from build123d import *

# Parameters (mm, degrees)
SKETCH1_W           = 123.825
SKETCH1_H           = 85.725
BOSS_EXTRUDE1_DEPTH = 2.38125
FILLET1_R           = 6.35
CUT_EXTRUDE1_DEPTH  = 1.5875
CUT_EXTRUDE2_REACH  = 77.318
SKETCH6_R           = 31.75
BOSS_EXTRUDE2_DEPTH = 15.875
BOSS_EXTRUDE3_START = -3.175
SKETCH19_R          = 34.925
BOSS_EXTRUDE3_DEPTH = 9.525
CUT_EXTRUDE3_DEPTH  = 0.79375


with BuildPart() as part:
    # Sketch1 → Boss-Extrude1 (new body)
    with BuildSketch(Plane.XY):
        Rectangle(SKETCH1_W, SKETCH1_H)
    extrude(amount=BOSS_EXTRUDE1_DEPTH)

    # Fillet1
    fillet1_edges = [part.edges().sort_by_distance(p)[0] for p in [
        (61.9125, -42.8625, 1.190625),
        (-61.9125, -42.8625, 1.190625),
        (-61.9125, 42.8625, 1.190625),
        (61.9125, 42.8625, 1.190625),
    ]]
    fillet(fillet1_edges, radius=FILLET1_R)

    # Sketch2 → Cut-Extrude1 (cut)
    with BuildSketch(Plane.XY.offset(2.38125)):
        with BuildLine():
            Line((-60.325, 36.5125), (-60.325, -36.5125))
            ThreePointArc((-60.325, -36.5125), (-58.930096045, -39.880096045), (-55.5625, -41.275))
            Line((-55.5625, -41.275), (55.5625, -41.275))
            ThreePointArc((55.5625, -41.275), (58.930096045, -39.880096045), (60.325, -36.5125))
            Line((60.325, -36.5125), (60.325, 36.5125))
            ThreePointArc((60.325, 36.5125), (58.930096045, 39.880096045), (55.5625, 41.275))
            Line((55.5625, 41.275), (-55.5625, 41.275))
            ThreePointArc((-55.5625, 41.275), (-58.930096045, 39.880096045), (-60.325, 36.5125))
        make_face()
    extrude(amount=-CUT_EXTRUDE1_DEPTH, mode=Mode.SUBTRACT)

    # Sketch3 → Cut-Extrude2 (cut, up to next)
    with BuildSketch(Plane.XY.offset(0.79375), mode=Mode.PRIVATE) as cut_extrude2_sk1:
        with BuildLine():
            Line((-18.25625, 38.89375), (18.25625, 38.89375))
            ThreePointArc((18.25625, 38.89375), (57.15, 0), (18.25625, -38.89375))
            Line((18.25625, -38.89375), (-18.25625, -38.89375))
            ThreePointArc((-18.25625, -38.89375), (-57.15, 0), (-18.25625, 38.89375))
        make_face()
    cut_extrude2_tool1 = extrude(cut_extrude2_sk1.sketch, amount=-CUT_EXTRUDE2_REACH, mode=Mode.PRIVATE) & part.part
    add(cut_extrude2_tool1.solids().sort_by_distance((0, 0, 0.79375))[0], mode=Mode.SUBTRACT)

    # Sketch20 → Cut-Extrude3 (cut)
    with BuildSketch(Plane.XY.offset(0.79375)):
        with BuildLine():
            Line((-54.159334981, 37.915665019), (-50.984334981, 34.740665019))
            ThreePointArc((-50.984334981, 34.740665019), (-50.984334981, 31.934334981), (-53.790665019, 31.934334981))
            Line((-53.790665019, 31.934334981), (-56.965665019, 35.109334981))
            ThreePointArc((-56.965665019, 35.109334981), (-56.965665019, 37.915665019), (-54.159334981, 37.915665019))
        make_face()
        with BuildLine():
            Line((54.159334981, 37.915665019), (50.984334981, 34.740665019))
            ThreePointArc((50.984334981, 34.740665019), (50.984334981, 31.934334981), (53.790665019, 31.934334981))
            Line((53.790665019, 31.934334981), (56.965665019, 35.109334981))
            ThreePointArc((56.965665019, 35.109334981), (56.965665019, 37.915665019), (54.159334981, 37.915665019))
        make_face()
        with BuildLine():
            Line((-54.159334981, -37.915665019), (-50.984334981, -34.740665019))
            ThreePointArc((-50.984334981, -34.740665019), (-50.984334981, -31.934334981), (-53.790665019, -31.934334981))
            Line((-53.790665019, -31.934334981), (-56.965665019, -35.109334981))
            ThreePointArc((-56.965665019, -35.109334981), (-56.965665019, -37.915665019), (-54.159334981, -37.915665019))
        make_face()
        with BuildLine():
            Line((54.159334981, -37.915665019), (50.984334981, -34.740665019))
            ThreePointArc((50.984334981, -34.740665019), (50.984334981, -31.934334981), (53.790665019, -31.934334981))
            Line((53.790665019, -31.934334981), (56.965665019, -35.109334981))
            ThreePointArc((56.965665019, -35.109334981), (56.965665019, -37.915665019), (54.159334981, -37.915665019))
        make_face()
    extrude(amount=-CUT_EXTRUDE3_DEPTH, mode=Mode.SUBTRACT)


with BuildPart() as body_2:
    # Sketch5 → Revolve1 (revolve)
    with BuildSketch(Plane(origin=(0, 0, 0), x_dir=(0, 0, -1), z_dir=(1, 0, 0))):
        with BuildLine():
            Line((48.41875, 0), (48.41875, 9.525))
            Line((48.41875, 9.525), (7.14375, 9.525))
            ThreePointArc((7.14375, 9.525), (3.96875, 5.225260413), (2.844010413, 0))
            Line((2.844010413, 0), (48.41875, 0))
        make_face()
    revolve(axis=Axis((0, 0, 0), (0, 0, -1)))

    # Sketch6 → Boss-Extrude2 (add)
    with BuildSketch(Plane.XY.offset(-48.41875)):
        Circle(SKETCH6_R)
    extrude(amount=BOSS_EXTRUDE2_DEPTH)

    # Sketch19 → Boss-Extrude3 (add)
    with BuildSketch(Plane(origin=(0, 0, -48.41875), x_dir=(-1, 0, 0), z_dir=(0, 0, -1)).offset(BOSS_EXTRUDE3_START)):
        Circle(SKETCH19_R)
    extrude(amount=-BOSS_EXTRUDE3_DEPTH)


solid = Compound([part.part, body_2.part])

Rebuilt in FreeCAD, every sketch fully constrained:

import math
import FreeCAD as App
import Part
import Sketcher
from FreeCAD import Vector
Q = App.Units.Quantity


def edges_at(feature, points):
    """Names of the edges that pass closest to the given points."""
    edges = feature.Shape.Edges
    near = lambda p: min(range(len(edges)), key=lambda i: edges[i].distToShape(Part.Vertex(*p))[0])
    return sorted({f"Edge{near(p) + 1}" for p in points})


def add_polygon(sketch, points):
    """Adds a closed chain of lines whose ends are joined by coincident constraints."""
    first, n = sketch.GeometryCount, len(points)
    for a, b in zip(points, points[1:] + points[:1]):
        sketch.addGeometry(Part.LineSegment(App.Vector(*a, 0), App.Vector(*b, 0)), False)
    for i in range(n):
        sketch.addConstraint(Sketcher.Constraint("Coincident", first + i, 2, first + (i + 1) % n, 1))

doc = App.newDocument("Part")
body = doc.addObject("PartDesign::Body", "Body")

sketch1 = body.newObject("Sketcher::SketchObject", "Sketch")
sketch1.AttachmentSupport = (doc.getObject("XY_Plane"), [""])
sketch1.MapMode = "FlatFace"
add_polygon(sketch1, [(-61.9125, 42.8625), (-61.9125, -42.8625), (61.9125, -42.8625), (61.9125, 42.8625)])
sketch1.addConstraint(Sketcher.Constraint("Vertical", 0))
sketch1.addConstraint(Sketcher.Constraint("Horizontal", 1))
sketch1.addConstraint(Sketcher.Constraint("Vertical", 2))
sketch1.addConstraint(Sketcher.Constraint("Horizontal", 3))
sketch1.addConstraint(Sketcher.Constraint("Symmetric", 0, 2, 2, 2, -1, 1))
sketch1.addConstraint(Sketcher.Constraint("DistanceX", 1, 1, 1, 2, Q("4.875 in")))
sketch1.addConstraint(Sketcher.Constraint("DistanceY", 0, 2, 0, 1, Q("3.375 in")))
pad1 = body.newObject("PartDesign::Pad", "Pad")
pad1.Profile = sketch1
pad1.Length = Q("0.09375 in")
doc.recompute()

fillet = body.newObject("PartDesign::Fillet", "Fillet")
fillet.Base = (pad1, edges_at(pad1, [
    (61.913, -42.862, 1.191),
    (-61.913, -42.862, 1.191),
    (-61.913, 42.862, 1.191),
    (61.913, 42.862, 1.191),
]))
fillet.Radius = Q("0.25 in")

sketch2 = body.newObject("Sketcher::SketchObject", "Sketch001")
sketch2.AttachmentSupport = (doc.getObject("XY_Plane"), [""])
sketch2.MapMode = "FlatFace"
sketch2.AttachmentOffset = App.Placement(Vector(0, 0, 0.09375 * 25.4), App.Rotation())
sketch2.addGeometry(Part.LineSegment(Vector(-60.325, 36.5125, 0), Vector(-60.325, -36.5125, 0)), False)
sketch2.addGeometry(Part.ArcOfCircle(Part.Circle(Vector(-55.5625, -36.5125, 0), Vector(0, 0, 1), 4.7625), math.radians(-180), math.radians(-90)), False)
sketch2.addGeometry(Part.LineSegment(Vector(-55.5625, -41.275, 0), Vector(55.5625, -41.275, 0)), False)
sketch2.addGeometry(Part.ArcOfCircle(Part.Circle(Vector(55.5625, -36.5125, 0), Vector(0, 0, 1), 4.7625), math.radians(-90), math.radians(0)), False)
sketch2.addGeometry(Part.LineSegment(Vector(60.325, -36.5125, 0), Vector(60.325, 36.5125, 0)), False)
sketch2.addGeometry(Part.ArcOfCircle(Part.Circle(Vector(55.5625, 36.5125, 0), Vector(0, 0, 1), 4.7625), math.radians(0), math.radians(90)), False)
sketch2.addGeometry(Part.LineSegment(Vector(55.5625, 41.275, 0), Vector(-55.5625, 41.275, 0)), False)
sketch2.addGeometry(Part.ArcOfCircle(Part.Circle(Vector(-55.5625, 36.5125, 0), Vector(0, 0, 1), 4.7625), math.radians(90), math.radians(180)), False)
sketch2.addConstraint(Sketcher.Constraint("Tangent", 0, 2, 1, 1))
sketch2.addConstraint(Sketcher.Constraint("Tangent", 1, 2, 2, 1))
sketch2.addConstraint(Sketcher.Constraint("Tangent", 2, 2, 3, 1))
sketch2.addConstraint(Sketcher.Constraint("Tangent", 3, 2, 4, 1))
sketch2.addConstraint(Sketcher.Constraint("Tangent", 4, 2, 5, 1))
sketch2.addConstraint(Sketcher.Constraint("Tangent", 5, 2, 6, 1))
sketch2.addConstraint(Sketcher.Constraint("Tangent", 6, 2, 7, 1))
sketch2.addConstraint(Sketcher.Constraint("Tangent", 7, 2, 0, 1))
sketch2.addConstraint(Sketcher.Constraint("Vertical", 0))
sketch2.addConstraint(Sketcher.Constraint("Horizontal", 2))
sketch2.addConstraint(Sketcher.Constraint("Vertical", 4))
sketch2.addConstraint(Sketcher.Constraint("Horizontal", 6))
sketch2.addConstraint(Sketcher.Constraint("Equal", 1, 3))
sketch2.addConstraint(Sketcher.Constraint("Equal", 3, 5))
sketch2.addConstraint(Sketcher.Constraint("Equal", 5, 7))
sketch2.addConstraint(Sketcher.Constraint("Symmetric", 1, 3, 5, 3, -1, 1))
sketch2.addConstraint(Sketcher.Constraint("Radius", 1, Q("0.1875 in")))
sketch2.addConstraint(Sketcher.Constraint("DistanceX", 2, 1, 2, 2, Q("4.375 in")))
sketch2.addConstraint(Sketcher.Constraint("DistanceY", 0, 2, 0, 1, Q("2.875 in")))
pocket1 = body.newObject("PartDesign::Pocket", "Pocket")
pocket1.Profile = sketch2
pocket1.Length = Q("0.0625 in")

sketch3 = body.newObject("Sketcher::SketchObject", "Sketch002")
sketch3.AttachmentSupport = (doc.getObject("XY_Plane"), [""])
sketch3.MapMode = "FlatFace"
sketch3.AttachmentOffset = App.Placement(Vector(0, 0, 0.03125 * 25.4), App.Rotation())
sketch3.addGeometry(Part.LineSegment(Vector(18.25625, 38.89375, 0), Vector(-18.25625, 38.89375, 0)), False)
sketch3.addGeometry(Part.ArcOfCircle(Part.Circle(Vector(-18.25625, 0, 0), Vector(0, 0, 1), 38.89375), math.radians(90), math.radians(270)), False)
sketch3.addGeometry(Part.LineSegment(Vector(-18.25625, -38.89375, 0), Vector(18.25625, -38.89375, 0)), False)
sketch3.addGeometry(Part.ArcOfCircle(Part.Circle(Vector(18.25625, 0, 0), Vector(0, 0, 1), 38.89375), math.radians(-90), math.radians(90)), False)
sketch3.addConstraint(Sketcher.Constraint("Tangent", 0, 2, 1, 1))
sketch3.addConstraint(Sketcher.Constraint("Tangent", 1, 2, 2, 1))
sketch3.addConstraint(Sketcher.Constraint("Tangent", 2, 2, 3, 1))
sketch3.addConstraint(Sketcher.Constraint("Tangent", 3, 2, 0, 1))
sketch3.addConstraint(Sketcher.Constraint("Horizontal", 0))
sketch3.addConstraint(Sketcher.Constraint("Horizontal", 2))
sketch3.addConstraint(Sketcher.Constraint("Symmetric", 1, 3, 3, 3, -1, 1))
sketch3.addConstraint(Sketcher.Constraint("Radius", 1, Q("1.53125 in")))
sketch3.addConstraint(Sketcher.Constraint("DistanceX", 0, 2, 0, 1, Q("1.4375 in")))
pocket2 = body.newObject("PartDesign::Pocket", "Pocket001")
pocket2.Profile = sketch3
pocket2.Type = "UpToFirst"

sketch4 = body.newObject("Sketcher::SketchObject", "Sketch003")
sketch4.AttachmentSupport = (doc.getObject("XY_Plane"), [""])
sketch4.MapMode = "FlatFace"
sketch4.AttachmentOffset = App.Placement(Vector(0, 0, 0.03125 * 25.4), App.Rotation())
sketch4.addGeometry(Part.LineSegment(Vector(-50.984335, 34.740665, 0), Vector(-54.159335, 37.915665, 0)), False)
sketch4.addGeometry(Part.ArcOfCircle(Part.Circle(Vector(-55.5625, 36.5125, 0), Vector(0, 0, 1), 1.984375), math.radians(45), math.radians(225)), False)
sketch4.addGeometry(Part.LineSegment(Vector(-56.965665, 35.109335, 0), Vector(-53.790665, 31.934335, 0)), False)
sketch4.addGeometry(Part.ArcOfCircle(Part.Circle(Vector(-52.3875, 33.3375, 0), Vector(0, 0, 1), 1.984375), math.radians(-135), math.radians(45)), False)
sketch4.addGeometry(Part.LineSegment(Vector(54.159335, 37.915665, 0), Vector(50.984335, 34.740665, 0)), False)
sketch4.addGeometry(Part.ArcOfCircle(Part.Circle(Vector(52.3875, 33.3375, 0), Vector(0, 0, 1), 1.984375), math.radians(135), math.radians(315)), False)
sketch4.addGeometry(Part.LineSegment(Vector(53.790665, 31.934335, 0), Vector(56.965665, 35.109335, 0)), False)
sketch4.addGeometry(Part.ArcOfCircle(Part.Circle(Vector(55.5625, 36.5125, 0), Vector(0, 0, 1), 1.984375), math.radians(-45), math.radians(135)), False)
sketch4.addGeometry(Part.LineSegment(Vector(-54.159335, -37.915665, 0), Vector(-50.984335, -34.740665, 0)), False)
sketch4.addGeometry(Part.ArcOfCircle(Part.Circle(Vector(-52.3875, -33.3375, 0), Vector(0, 0, 1), 1.984375), math.radians(-45), math.radians(135)), False)
sketch4.addGeometry(Part.LineSegment(Vector(-53.790665, -31.934335, 0), Vector(-56.965665, -35.109335, 0)), False)
sketch4.addGeometry(Part.ArcOfCircle(Part.Circle(Vector(-55.5625, -36.5125, 0), Vector(0, 0, 1), 1.984375), math.radians(135), math.radians(315)), False)
sketch4.addGeometry(Part.LineSegment(Vector(50.984335, -34.740665, 0), Vector(54.159335, -37.915665, 0)), False)
sketch4.addGeometry(Part.ArcOfCircle(Part.Circle(Vector(55.5625, -36.5125, 0), Vector(0, 0, 1), 1.984375), math.radians(-135), math.radians(45)), False)
sketch4.addGeometry(Part.LineSegment(Vector(56.965665, -35.109335, 0), Vector(53.790665, -31.934335, 0)), False)
sketch4.addGeometry(Part.ArcOfCircle(Part.Circle(Vector(52.3875, -33.3375, 0), Vector(0, 0, 1), 1.984375), math.radians(45), math.radians(225)), False)
sketch4.addConstraint(Sketcher.Constraint("Tangent", 0, 2, 1, 1))
sketch4.addConstraint(Sketcher.Constraint("Tangent", 1, 2, 2, 1))
sketch4.addConstraint(Sketcher.Constraint("Tangent", 2, 2, 3, 1))
sketch4.addConstraint(Sketcher.Constraint("Tangent", 3, 2, 0, 1))
sketch4.addConstraint(Sketcher.Constraint("Tangent", 4, 2, 5, 1))
sketch4.addConstraint(Sketcher.Constraint("Tangent", 5, 2, 6, 1))
sketch4.addConstraint(Sketcher.Constraint("Tangent", 6, 2, 7, 1))
sketch4.addConstraint(Sketcher.Constraint("Tangent", 7, 2, 4, 1))
sketch4.addConstraint(Sketcher.Constraint("Tangent", 8, 2, 9, 1))
sketch4.addConstraint(Sketcher.Constraint("Tangent", 9, 2, 10, 1))
sketch4.addConstraint(Sketcher.Constraint("Tangent", 10, 2, 11, 1))
sketch4.addConstraint(Sketcher.Constraint("Tangent", 11, 2, 8, 1))
sketch4.addConstraint(Sketcher.Constraint("Tangent", 12, 2, 13, 1))
sketch4.addConstraint(Sketcher.Constraint("Tangent", 13, 2, 14, 1))
sketch4.addConstraint(Sketcher.Constraint("Tangent", 14, 2, 15, 1))
sketch4.addConstraint(Sketcher.Constraint("Tangent", 15, 2, 12, 1))
sketch4.addConstraint(Sketcher.Constraint("Equal", 1, 3))
sketch4.addConstraint(Sketcher.Constraint("Equal", 3, 5))
sketch4.addConstraint(Sketcher.Constraint("Equal", 5, 7))
sketch4.addConstraint(Sketcher.Constraint("Equal", 7, 9))
sketch4.addConstraint(Sketcher.Constraint("Equal", 9, 11))
sketch4.addConstraint(Sketcher.Constraint("Equal", 11, 13))
sketch4.addConstraint(Sketcher.Constraint("Equal", 13, 15))
sketch4.addConstraint(Sketcher.Constraint("Symmetric", 5, 3, 9, 3, -1, 1))
sketch4.addConstraint(Sketcher.Constraint("Symmetric", 7, 3, 11, 3, -1, 1))
sketch4.addConstraint(Sketcher.Constraint("Symmetric", 1, 3, 13, 3, -1, 1))
sketch4.addConstraint(Sketcher.Constraint("Symmetric", 3, 3, 15, 3, -1, 1))
sketch4.addConstraint(Sketcher.Constraint("Symmetric", 3, 3, 5, 3, -2))
sketch4.addConstraint(Sketcher.Constraint("Symmetric", 1, 3, 7, 3, -2))
sketch4.addConstraint(Sketcher.Constraint("Perpendicular", 2, 4))
sketch4.addConstraint(Sketcher.Constraint("Radius", 1, Q("0.078125 in")))
sketch4.addConstraint(Sketcher.Constraint("DistanceX", 1, 3, 5, 3, Q("4.25 in")))
sketch4.addConstraint(Sketcher.Constraint("DistanceY", 9, 3, 1, 3, Q("2.75 in")))
sketch4.addConstraint(Sketcher.Constraint("DistanceX", 1, 3, -1, 1, Q("2.1875 in")))
pocket3 = body.newObject("PartDesign::Pocket", "Pocket002")
pocket3.Profile = sketch4
pocket3.Length = Q("0.03125 in")
body2 = doc.addObject("PartDesign::Body", "Body001")

sketch5 = body2.newObject("Sketcher::SketchObject", "Sketch004")
sketch5.AttachmentSupport = (doc.getObject("YZ_Plane001"), [""])
sketch5.MapMode = "FlatFace"
sketch5.addGeometry(Part.LineSegment(Vector(0, -48.41875, 0), Vector(9.525, -48.41875, 0)), False)
sketch5.addGeometry(Part.LineSegment(Vector(9.525, -48.41875, 0), Vector(9.525, -7.14375, 0)), False)
sketch5.addGeometry(Part.ArcOfCircle(Part.Circle(Vector(0, -15.54401, 0), Vector(0, 0, 1), 12.7), math.radians(41.409622), math.radians(90)), False)
sketch5.addGeometry(Part.LineSegment(Vector(0, -2.84401, 0), Vector(0, -48.41875, 0)), False)
sketch5.addConstraint(Sketcher.Constraint("Coincident", 0, 2, 1, 1))
sketch5.addConstraint(Sketcher.Constraint("Coincident", 1, 2, 2, 1))
sketch5.addConstraint(Sketcher.Constraint("Coincident", 2, 2, 3, 1))
sketch5.addConstraint(Sketcher.Constraint("Coincident", 3, 2, 0, 1))
sketch5.addConstraint(Sketcher.Constraint("Horizontal", 0))
sketch5.addConstraint(Sketcher.Constraint("Vertical", 1))
sketch5.addConstraint(Sketcher.Constraint("Vertical", 3))
sketch5.addConstraint(Sketcher.Constraint("PointOnObject", 2, 3, -2))
sketch5.addConstraint(Sketcher.Constraint("PointOnObject", 2, 2, -2))
sketch5.addConstraint(Sketcher.Constraint("Radius", 2, Q("0.5 in")))
sketch5.addConstraint(Sketcher.Constraint("DistanceX", 0, 1, 0, 2, Q("0.375 in")))
sketch5.addConstraint(Sketcher.Constraint("DistanceY", 1, 1, 1, 2, Q("1.625 in")))
sketch5.addConstraint(Sketcher.Constraint("DistanceY", 0, 2, -1, 1, Q("1.90625 in")))
revolution = body2.newObject("PartDesign::Revolution", "Revolution")
revolution.Profile = sketch5
revolution.ReferenceAxis = (sketch5, ["V_Axis"])
revolution.Angle = 360

sketch6 = body2.newObject("Sketcher::SketchObject", "Sketch005")
sketch6.AttachmentSupport = (doc.getObject("XY_Plane001"), [""])
sketch6.MapMode = "FlatFace"
sketch6.AttachmentOffset = App.Placement(Vector(0, 0, -1.90625 * 25.4), App.Rotation())
sketch6.addGeometry(Part.Circle(Vector(0, 0, 0), Vector(0, 0, 1), 31.75), False)
sketch6.addConstraint(Sketcher.Constraint("Coincident", 0, 3, -1, 1))
sketch6.addConstraint(Sketcher.Constraint("Diameter", 0, Q("2.5 in")))
pad2 = body2.newObject("PartDesign::Pad", "Pad001")
pad2.Profile = sketch6
pad2.Length = Q("0.625 in")

sketch7 = body2.newObject("Sketcher::SketchObject", "Sketch006")
sketch7.AttachmentSupport = (doc.getObject("XY_Plane001"), [""])
sketch7.MapMode = "FlatFace"
sketch7.AttachmentOffset = App.Placement(Vector(0, 0, -1.78125 * 25.4), App.Rotation())
sketch7.addGeometry(Part.Circle(Vector(0, 0, 0), Vector(0, 0, 1), 34.925), False)
sketch7.addConstraint(Sketcher.Constraint("Coincident", 0, 3, -1, 1))
sketch7.addConstraint(Sketcher.Constraint("Diameter", 0, Q("2.75 in")))
pad3 = body2.newObject("PartDesign::Pad", "Pad002")
pad3.Profile = sketch7
pad3.Length = Q("0.375 in")

doc.recompute()
